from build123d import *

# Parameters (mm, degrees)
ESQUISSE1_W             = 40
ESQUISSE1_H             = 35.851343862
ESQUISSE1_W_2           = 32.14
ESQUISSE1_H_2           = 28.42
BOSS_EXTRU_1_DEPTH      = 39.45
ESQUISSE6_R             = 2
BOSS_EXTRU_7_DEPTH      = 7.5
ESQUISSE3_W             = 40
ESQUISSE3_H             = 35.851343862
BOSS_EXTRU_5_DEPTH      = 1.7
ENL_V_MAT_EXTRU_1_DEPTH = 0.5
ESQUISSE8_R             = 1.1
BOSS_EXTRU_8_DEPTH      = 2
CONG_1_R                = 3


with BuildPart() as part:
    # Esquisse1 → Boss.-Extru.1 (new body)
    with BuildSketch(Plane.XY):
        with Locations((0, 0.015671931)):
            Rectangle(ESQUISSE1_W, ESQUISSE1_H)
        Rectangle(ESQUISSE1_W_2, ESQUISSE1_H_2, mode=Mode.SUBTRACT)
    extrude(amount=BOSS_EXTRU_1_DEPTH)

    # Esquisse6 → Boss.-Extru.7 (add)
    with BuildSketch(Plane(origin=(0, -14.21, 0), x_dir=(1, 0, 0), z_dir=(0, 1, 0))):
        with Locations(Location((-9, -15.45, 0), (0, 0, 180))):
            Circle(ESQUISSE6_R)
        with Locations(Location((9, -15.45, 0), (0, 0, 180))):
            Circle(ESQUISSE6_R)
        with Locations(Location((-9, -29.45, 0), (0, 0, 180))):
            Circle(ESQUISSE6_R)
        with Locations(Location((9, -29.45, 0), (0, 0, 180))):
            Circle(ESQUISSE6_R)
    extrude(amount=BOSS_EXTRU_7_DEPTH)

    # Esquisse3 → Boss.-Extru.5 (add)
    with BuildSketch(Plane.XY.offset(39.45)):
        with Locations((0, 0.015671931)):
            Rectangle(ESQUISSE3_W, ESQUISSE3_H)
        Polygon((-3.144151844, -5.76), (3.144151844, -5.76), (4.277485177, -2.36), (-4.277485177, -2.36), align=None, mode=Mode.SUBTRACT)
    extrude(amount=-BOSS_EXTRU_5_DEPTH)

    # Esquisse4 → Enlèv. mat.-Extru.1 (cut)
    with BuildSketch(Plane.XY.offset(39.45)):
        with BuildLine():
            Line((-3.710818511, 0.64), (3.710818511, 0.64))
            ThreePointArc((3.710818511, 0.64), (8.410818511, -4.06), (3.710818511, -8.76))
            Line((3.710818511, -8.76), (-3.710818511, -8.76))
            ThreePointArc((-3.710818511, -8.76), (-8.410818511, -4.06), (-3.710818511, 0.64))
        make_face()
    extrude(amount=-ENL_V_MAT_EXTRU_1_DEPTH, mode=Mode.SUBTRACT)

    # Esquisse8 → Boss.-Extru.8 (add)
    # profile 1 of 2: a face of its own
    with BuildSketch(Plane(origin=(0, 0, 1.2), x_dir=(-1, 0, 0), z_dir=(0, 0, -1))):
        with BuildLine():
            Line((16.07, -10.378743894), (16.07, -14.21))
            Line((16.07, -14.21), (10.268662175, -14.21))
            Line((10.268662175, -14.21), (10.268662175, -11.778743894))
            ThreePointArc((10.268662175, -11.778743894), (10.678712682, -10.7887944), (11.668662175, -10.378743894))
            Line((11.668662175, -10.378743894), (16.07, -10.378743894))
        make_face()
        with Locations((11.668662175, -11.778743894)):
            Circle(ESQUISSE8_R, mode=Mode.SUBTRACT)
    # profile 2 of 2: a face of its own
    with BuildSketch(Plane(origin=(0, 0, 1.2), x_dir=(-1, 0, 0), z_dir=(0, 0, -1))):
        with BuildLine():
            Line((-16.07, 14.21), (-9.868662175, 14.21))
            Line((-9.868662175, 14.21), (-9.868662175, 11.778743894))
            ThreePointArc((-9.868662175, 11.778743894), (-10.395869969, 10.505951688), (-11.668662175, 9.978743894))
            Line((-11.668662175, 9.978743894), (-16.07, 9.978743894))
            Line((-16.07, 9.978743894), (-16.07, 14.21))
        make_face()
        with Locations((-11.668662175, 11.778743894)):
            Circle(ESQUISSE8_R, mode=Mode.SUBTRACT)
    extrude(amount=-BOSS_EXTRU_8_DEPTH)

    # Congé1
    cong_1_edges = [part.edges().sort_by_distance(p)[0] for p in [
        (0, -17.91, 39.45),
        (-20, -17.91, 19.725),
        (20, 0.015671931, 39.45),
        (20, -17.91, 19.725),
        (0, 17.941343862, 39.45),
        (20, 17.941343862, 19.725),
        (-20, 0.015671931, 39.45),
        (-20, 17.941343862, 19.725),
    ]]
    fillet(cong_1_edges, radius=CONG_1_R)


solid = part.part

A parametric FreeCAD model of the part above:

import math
import FreeCAD as App
import Part
import Sketcher
Q = App.Units.Quantity


def edges_at(feature, points):
    """Names of the edges that pass closest to the given points."""
    edges = feature.Shape.Edges
    near = lambda p: min(range(len(edges)), key=lambda i: edges[i].distToShape(Part.Vertex(*p))[0])
    return sorted({f"Edge{near(p) + 1}" for p in points})

doc = App.newDocument("Part")
body = doc.addObject("PartDesign::Body", "Body")

sketch1 = body.newObject("Sketcher::SketchObject", "Sketch")
sketch1.AttachmentSupport = (doc.getObject("XY_Plane"), [""])
sketch1.MapMode = "FlatFace"
sketch1.addGeometry([
    Part.LineSegment(App.Vector(-20, 18, 0), App.Vector(-20, -18, 0)),
    Part.LineSegment(App.Vector(-20, -18, 0), App.Vector(20, -18, 0)),
    Part.LineSegment(App.Vector(20, -18, 0), App.Vector(20, 18, 0)),
    Part.LineSegment(App.Vector(20, 18, 0), App.Vector(-20, 18, 0)),
    Part.LineSegment(App.Vector(16, -14, 0), App.Vector(-16, -14, 0)),
    Part.LineSegment(App.Vector(-16, -14, 0), App.Vector(-16, 14, 0)),
    Part.LineSegment(App.Vector(-16, 14, 0), App.Vector(16, 14, 0)),
    Part.LineSegment(App.Vector(16, 14, 0), App.Vector(16, -14, 0)),
], False)
sketch1.addConstraint([
    Sketcher.Constraint("Coincident", 0, 2, 1, 1),
    Sketcher.Constraint("Coincident", 1, 2, 2, 1),
    Sketcher.Constraint("Coincident", 2, 2, 3, 1),
    Sketcher.Constraint("Coincident", 3, 2, 0, 1),
    Sketcher.Constraint("Coincident", 4, 2, 5, 1),
    Sketcher.Constraint("Coincident", 5, 2, 6, 1),
    Sketcher.Constraint("Coincident", 6, 2, 7, 1),
    Sketcher.Constraint("Coincident", 7, 2, 4, 1),
    Sketcher.Constraint("Vertical", 0),
    Sketcher.Constraint("Horizontal", 1),
    Sketcher.Constraint("Vertical", 2),
    Sketcher.Constraint("Horizontal", 3),
    Sketcher.Constraint("Horizontal", 4),
    Sketcher.Constraint("Vertical", 5),
    Sketcher.Constraint("Horizontal", 6),
    Sketcher.Constraint("Vertical", 7),
    Sketcher.Constraint("Symmetric", 4, 2, 6, 2, -1, 1),
    Sketcher.Constraint("DistanceX", 1, 1, 1, 2, Q("40 mm")),
    Sketcher.Constraint("DistanceX", 0, 2, -1, 1, Q("20 mm")),
    Sketcher.Constraint("DistanceX", 4, 2, 4, 1, Q("32.14 mm")),
    Sketcher.Constraint("DistanceY", 5, 1, 5, 2, Q("28.42 mm")),
    Sketcher.Constraint("DistanceY", 0, 2, 4, 2, Q("3.7 mm")),
    Sketcher.Constraint("DistanceY", 0, 2, 0, 1, Q("35.851344 mm")),
])
pad1 = body.newObject("PartDesign::Pad", "Pad")
pad1.Profile = sketch1
pad1.Length = 39.45

sketch2 = body.newObject("Sketcher::SketchObject", "Sketch001")
sketch2.AttachmentSupport = (doc.getObject("XZ_Plane"), [""])
sketch2.MapMode = "FlatFace"
sketch2.AttachmentOffset = App.Placement(App.Vector(0, 0, 14.21), App.Rotation())
sketch2.addGeometry([
    Part.Circle(App.Vector(-9, 15.4, 0), App.Vector(0, 0, 1), 2),
    Part.Circle(App.Vector(9, 15.4, 0), App.Vector(0, 0, 1), 2),
    Part.Circle(App.Vector(-9, 29.4, 0), App.Vector(0, 0, 1), 2),
    Part.Circle(App.Vector(9, 29.4, 0), App.Vector(0, 0, 1), 2),
], False)
sketch2.addConstraint([
    Sketcher.Constraint("Equal", 0, 1),
    Sketcher.Constraint("Equal", 1, 2),
    Sketcher.Constraint("Equal", 2, 3),
    Sketcher.Constraint("Symmetric", 0, 3, 1, 3, -2),
    Sketcher.Constraint("Symmetric", 2, 3, 3, 3, -2),
    Sketcher.Constraint("Vertical", 0, 3, 2, 3),
    Sketcher.Constraint("Diameter", 0, Q("4 mm")),
    Sketcher.Constraint("DistanceX", 0, 3, -1, 1, Q("9 mm")),
    Sketcher.Constraint("DistanceY", 0, 3, 2, 3, Q("14 mm")),
    Sketcher.Constraint("DistanceY", -1, 1, 0, 3, Q("15.45 mm")),
])
pad2 = body.newObject("PartDesign::Pad", "Pad001")
pad2.Profile = sketch2
pad2.Length = 7.5
pad2.Reversed = True

sketch3 = body.newObject("Sketcher::SketchObject", "Sketch002")
sketch3.AttachmentSupport = (doc.getObject("XY_Plane"), [""])
sketch3.MapMode = "FlatFace"
sketch3.AttachmentOffset = App.Placement(App.Vector(0, 0, 39.45), App.Rotation())
sketch3.addGeometry([
    Part.LineSegment(App.Vector(-20, 17.9, 0), App.Vector(-20, -17.9, 0)),
    Part.LineSegment(App.Vector(-20, -17.9, 0), App.Vector(20, -17.9, 0)),
    Part.LineSegment(App.Vector(20, -17.9, 0), App.Vector(20, 17.9, 0)),
    Part.LineSegment(App.Vector(20, 17.9, 0), App.Vector(-20, 17.9, 0)),
    Part.LineSegment(App.Vector(3.1, -5.8, 0), App.Vector(-3.1, -5.8, 0)),
    Part.LineSegment(App.Vector(-3.1, -5.8, 0), App.Vector(-4.3, -2.4, 0)),
    Part.LineSegment(App.Vector(-4.3, -2.4, 0), App.Vector(4.3, -2.4, 0)),
    Part.LineSegment(App.Vector(4.3, -2.4, 0), App.Vector(3.1, -5.8, 0)),
], False)
sketch3.addConstraint([
    Sketcher.Constraint("Coincident", 0, 2, 1, 1),
    Sketcher.Constraint("Coincident", 1, 2, 2, 1),
    Sketcher.Constraint("Coincident", 2, 2, 3, 1),
    Sketcher.Constraint("Coincident", 3, 2, 0, 1),
    Sketcher.Constraint("Coincident", 4, 2, 5, 1),
    Sketcher.Constraint("Coincident", 5, 2, 6, 1),
    Sketcher.Constraint("Coincident", 6, 2, 7, 1),
    Sketcher.Constraint("Coincident", 7, 2, 4, 1),
    Sketcher.Constraint("Vertical", 0),
    Sketcher.Constraint("Horizontal", 1),
    Sketcher.Constraint("Vertical", 2),
    Sketcher.Constraint("Horizontal", 3),
    Sketcher.Constraint("Horizontal", 4),
    Sketcher.Constraint("Horizontal", 6),
    Sketcher.Constraint("Equal", 5, 7),
    Sketcher.Constraint("DistanceX", 1, 1, 1, 2, Q("40 mm")),
    Sketcher.Constraint("DistanceX", 0, 2, -1, 1, Q("20 mm")),
    Sketcher.Constraint("DistanceY", 4, 2, 5, 2, Q("3.4 mm")),
    Sketcher.Constraint("DistanceY", 0, 2, -1, 1, Q("17.91 mm")),
    Sketcher.Constraint("DistanceY", 4, 2, -1, 1, Q("5.76 mm")),
    Sketcher.Constraint("DistanceX", 6, 1, 6, 2, Q("8.55497 mm")),
    Sketcher.Constraint("DistanceX", 4, 2, 4, 1, Q("6.288304 mm")),
    Sketcher.Constraint("DistanceY", 0, 2, 0, 1, Q("35.851344 mm")),
    Sketcher.Constraint("DistanceX", 4, 2, -1, 1, Q("3.144152 mm")),
])
pad3 = body.newObject("PartDesign::Pad", "Pad002")
pad3.Profile = sketch3
pad3.Length = 1.7
pad3.Reversed = True

sketch4 = body.newObject("Sketcher::SketchObject", "Sketch003")
sketch4.AttachmentSupport = (doc.getObject("XY_Plane"), [""])
sketch4.MapMode = "FlatFace"
sketch4.AttachmentOffset = App.Placement(App.Vector(0, 0, 39.45), App.Rotation())
sketch4.addGeometry([
    Part.LineSegment(App.Vector(3.7, 0.6, 0), App.Vector(-3.7, 0.6, 0)),
    Part.ArcOfCircle(Part.Circle(App.Vector(-3.7, -4.1, 0), App.Vector(0, 0, 1), 4.7), math.radians(90), math.radians(270)),
    Part.LineSegment(App.Vector(-3.7, -8.8, 0), App.Vector(3.7, -8.8, 0)),
    Part.ArcOfCircle(Part.Circle(App.Vector(3.7, -4.1, 0), App.Vector(0, 0, 1), 4.7), math.radians(-90), math.radians(90)),
], False)
sketch4.addConstraint([
    Sketcher.Constraint("Tangent", 0, 2, 1, 1),
    Sketcher.Constraint("Tangent", 1, 2, 2, 1),
    Sketcher.Constraint("Tangent", 2, 2, 3, 1),
    Sketcher.Constraint("Tangent", 3, 2, 0, 1),
    Sketcher.Constraint("Horizontal", 0),
    Sketcher.Constraint("Horizontal", 2),
    Sketcher.Constraint("Radius", 1, Q("4.7 mm")),
    Sketcher.Constraint("DistanceY", 1, 3, -1, 1, Q("4.06 mm")),
    Sketcher.Constraint("DistanceX", 0, 2, 0, 1, Q("7.421637 mm")),
    Sketcher.Constraint("DistanceX", 1, 3, -1, 1, Q("3.710819 mm")),
])
pocket1 = body.newObject("PartDesign::Pocket", "Pocket")
pocket1.Profile = sketch4
pocket1.Length = 0.5

sketch5 = body.newObject("Sketcher::SketchObject", "Sketch004")
sketch5.AttachmentSupport = (doc.getObject("XY_Plane"), [""])
sketch5.MapMode = "FlatFace"
sketch5.AttachmentOffset = App.Placement(App.Vector(0, 0, 1.2), App.Rotation())
sketch5.addGeometry([
    Part.LineSegment(App.Vector(-16.1, -14.2, 0), App.Vector(-16.1, -10.4, 0)),
    Part.LineSegment(App.Vector(-16.1, -10.4, 0), App.Vector(-11.7, -10.4, 0)),
    Part.ArcOfCircle(Part.Circle(App.Vector(-11.7, -11.8, 0), App.Vector(0, 0, 1), 1.4), math.radians(0), math.radians(90)),
    Part.LineSegment(App.Vector(-10.3, -11.8, 0), App.Vector(-10.3, -14.2, 0)),
    Part.LineSegment(App.Vector(-10.3, -14.2, 0), App.Vector(-16.1, -14.2, 0)),
    Part.Circle(App.Vector(-11.7, -11.8, 0), App.Vector(0, 0, 1), 1.1),
    Part.LineSegment(App.Vector(9.9, 14.2, 0), App.Vector(16.1, 14.2, 0)),
    Part.LineSegment(App.Vector(16.1, 14.2, 0), App.Vector(16.1, 10, 0)),
    Part.LineSegment(App.Vector(16.1, 10, 0), App.Vector(11.7, 10, 0)),
    Part.ArcOfCircle(Part.Circle(App.Vector(11.7, 11.8, 0), App.Vector(0, 0, 1), 1.8), math.radians(180), math.radians(270)),
    Part.LineSegment(App.Vector(9.9, 11.8, 0), App.Vector(9.9, 14.2, 0)),
    Part.Circle(App.Vector(11.7, 11.8, 0), App.Vector(0, 0, 1), 1.1),
], False)
sketch5.addConstraint([
    Sketcher.Constraint("Coincident", 0, 2, 1, 1),
    Sketcher.Constraint("Tangent", 1, 2, 2, 2),
    Sketcher.Constraint("Tangent", 2, 1, 3, 1),
    Sketcher.Constraint("Coincident", 3, 2, 4, 1),
    Sketcher.Constraint("Coincident", 4, 2, 0, 1),
    Sketcher.Constraint("Coincident", 6, 2, 7, 1),
    Sketcher.Constraint("Coincident", 7, 2, 8, 1),
    Sketcher.Constraint("Tangent", 8, 2, 9, 2),
    Sketcher.Constraint("Tangent", 9, 1, 10, 1),
    Sketcher.Constraint("Coincident", 10, 2, 6, 1),
    Sketcher.Constraint("Vertical", 0),
    Sketcher.Constraint("Horizontal", 1),
    Sketcher.Constraint("Vertical", 3),
    Sketcher.Constraint("Horizontal", 4),
    Sketcher.Constraint("Horizontal", 6),
    Sketcher.Constraint("Vertical", 7),
    Sketcher.Constraint("Horizontal", 8),
    Sketcher.Constraint("Vertical", 10),
    Sketcher.Constraint("Coincident", 5, 3, 2, 3),
    Sketcher.Constraint("Coincident", 11, 3, 9, 3),
    Sketcher.Constraint("Equal", 5, 11),
    Sketcher.Constraint("Symmetric", 2, 3, 9, 3, -1, 1),
    Sketcher.Constraint("Symmetric", 4, 2, 6, 2, -1, 1),
    Sketcher.Constraint("Diameter", 5, Q("2.2 mm")),
    Sketcher.Constraint("Radius", 2, Q("1.4 mm")),
    Sketcher.Constraint("Radius", 9, Q("1.8 mm")),
    Sketcher.Constraint("DistanceX", 0, 2, -1, 1, Q("16.07 mm")),
    Sketcher.Constraint("DistanceY", 3, 2, -1, 1, Q("14.21 mm")),
    Sketcher.Constraint("DistanceX", 1, 1, 1, 2, Q("4.401338 mm")),
    Sketcher.Constraint("DistanceY", 0, 1, 0, 2, Q("3.831256 mm")),
])
pad4 = body.newObject("PartDesign::Pad", "Pad003")
pad4.Profile = sketch5
pad4.Length = 2
doc.recompute()

fillet = body.newObject("PartDesign::Fillet", "Fillet")
fillet.Base = (pad4, edges_at(pad4, [
    (0, -17.91, 39.45),
    (-20, -17.91, 19.725),
    (20, 0.016, 39.45),
    (20, -17.91, 19.725),
    (0, 17.941, 39.45),
    (20, 17.941, 19.725),
    (-20, 0.016, 39.45),
    (-20, 17.941, 19.725),
]))
fillet.Radius = 3

doc.recompute()
